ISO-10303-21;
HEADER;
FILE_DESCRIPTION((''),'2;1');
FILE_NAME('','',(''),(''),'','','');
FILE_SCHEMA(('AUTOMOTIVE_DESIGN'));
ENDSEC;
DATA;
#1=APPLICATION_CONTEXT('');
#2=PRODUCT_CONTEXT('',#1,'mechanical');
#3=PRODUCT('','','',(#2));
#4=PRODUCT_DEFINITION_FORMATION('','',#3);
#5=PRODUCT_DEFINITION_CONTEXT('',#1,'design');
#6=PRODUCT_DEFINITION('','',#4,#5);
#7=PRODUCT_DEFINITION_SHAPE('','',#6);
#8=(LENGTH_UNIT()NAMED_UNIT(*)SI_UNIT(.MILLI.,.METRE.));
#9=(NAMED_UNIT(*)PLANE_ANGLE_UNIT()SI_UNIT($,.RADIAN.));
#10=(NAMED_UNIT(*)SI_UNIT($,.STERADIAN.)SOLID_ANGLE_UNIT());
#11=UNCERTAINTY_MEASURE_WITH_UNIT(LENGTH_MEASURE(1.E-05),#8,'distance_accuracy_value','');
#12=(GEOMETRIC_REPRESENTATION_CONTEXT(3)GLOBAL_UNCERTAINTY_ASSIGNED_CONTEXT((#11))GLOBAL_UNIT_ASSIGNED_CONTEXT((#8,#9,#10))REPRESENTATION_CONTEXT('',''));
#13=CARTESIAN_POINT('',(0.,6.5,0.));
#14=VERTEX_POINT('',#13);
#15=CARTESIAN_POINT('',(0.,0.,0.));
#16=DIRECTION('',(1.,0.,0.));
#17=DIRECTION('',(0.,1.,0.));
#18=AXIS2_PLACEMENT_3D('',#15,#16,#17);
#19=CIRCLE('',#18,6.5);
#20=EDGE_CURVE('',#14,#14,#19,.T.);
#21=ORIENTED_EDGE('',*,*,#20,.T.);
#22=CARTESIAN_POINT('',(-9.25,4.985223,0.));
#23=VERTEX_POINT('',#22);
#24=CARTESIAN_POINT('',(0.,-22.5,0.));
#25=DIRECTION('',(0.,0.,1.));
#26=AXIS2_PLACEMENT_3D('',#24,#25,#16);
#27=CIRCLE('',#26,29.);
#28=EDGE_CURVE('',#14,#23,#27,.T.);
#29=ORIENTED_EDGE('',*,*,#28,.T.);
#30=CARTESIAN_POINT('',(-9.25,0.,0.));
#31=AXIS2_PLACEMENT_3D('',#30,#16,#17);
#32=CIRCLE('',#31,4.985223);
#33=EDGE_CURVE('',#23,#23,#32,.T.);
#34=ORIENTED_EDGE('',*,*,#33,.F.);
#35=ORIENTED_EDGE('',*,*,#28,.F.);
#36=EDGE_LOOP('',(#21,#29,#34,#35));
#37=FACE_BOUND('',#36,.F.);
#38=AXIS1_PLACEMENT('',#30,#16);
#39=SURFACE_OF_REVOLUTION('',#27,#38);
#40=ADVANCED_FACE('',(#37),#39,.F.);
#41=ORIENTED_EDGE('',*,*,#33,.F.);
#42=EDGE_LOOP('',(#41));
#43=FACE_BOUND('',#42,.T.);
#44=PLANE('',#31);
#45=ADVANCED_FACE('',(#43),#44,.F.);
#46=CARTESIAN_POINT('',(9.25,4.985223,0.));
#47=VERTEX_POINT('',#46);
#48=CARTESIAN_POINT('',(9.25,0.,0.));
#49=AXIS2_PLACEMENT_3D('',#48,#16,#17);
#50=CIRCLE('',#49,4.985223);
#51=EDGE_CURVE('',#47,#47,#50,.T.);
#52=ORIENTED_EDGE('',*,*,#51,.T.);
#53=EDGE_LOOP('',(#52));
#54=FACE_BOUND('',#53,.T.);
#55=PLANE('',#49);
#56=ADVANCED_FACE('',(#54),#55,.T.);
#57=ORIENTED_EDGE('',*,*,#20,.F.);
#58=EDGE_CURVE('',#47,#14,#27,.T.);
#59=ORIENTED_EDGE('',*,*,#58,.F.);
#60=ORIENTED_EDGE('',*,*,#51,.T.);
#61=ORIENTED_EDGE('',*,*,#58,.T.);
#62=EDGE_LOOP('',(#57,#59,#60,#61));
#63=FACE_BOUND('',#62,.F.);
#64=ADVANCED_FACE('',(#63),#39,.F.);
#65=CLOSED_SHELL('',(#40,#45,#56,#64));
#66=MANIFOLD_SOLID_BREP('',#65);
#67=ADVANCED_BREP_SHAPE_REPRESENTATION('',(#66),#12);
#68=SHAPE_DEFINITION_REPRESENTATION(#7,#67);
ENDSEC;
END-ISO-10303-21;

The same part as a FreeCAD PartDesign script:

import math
import FreeCAD as App
import Part
import Sketcher

doc = App.newDocument("Part")
params = doc.addObject("Spreadsheet::Sheet", "Params")
for row, (alias, value) in enumerate([
    ("sketch1_radius", "29 mm"),
    ("sketch1_width", "18.5 mm"),
    ("revolution_angle", "360 deg"),
], start=1):
    params.set(f"A{row}", alias)
    params.set(f"B{row}", "=" + value)
    params.setAlias(f"B{row}", alias)

body = doc.addObject("PartDesign::Body", "Body")

# Sketch on XY plane
sketch1 = doc.addObject("Sketcher::SketchObject", "Sketch")
body.addObject(sketch1)
sketch1.AttachmentSupport = (doc.XY_Plane, [""])
sketch1.MapMode = "FlatFace"
sketch1.addGeometry([
    Part.LineSegment(App.Vector(9.2, 0, 0), App.Vector(9.2, 5, 0)),
    Part.ArcOfCircle(Part.Circle(App.Vector(0, -22.5, 0), App.Vector(0, 0, 1), 29), math.radians(71), math.radians(109)),
    Part.LineSegment(App.Vector(-9.2, 5, 0), App.Vector(-9.2, 0, 0)),
    Part.LineSegment(App.Vector(-9.2, 0, 0), App.Vector(9.2, 0, 0)),
], False)
sketch1.addConstraint([
    Sketcher.Constraint("Coincident", 0, 2, 1, 1),
    Sketcher.Constraint("Coincident", 1, 2, 2, 1),
    Sketcher.Constraint("Coincident", 2, 2, 3, 1),
    Sketcher.Constraint("Coincident", 3, 2, 0, 1),
    Sketcher.Constraint("Vertical", 0),
    Sketcher.Constraint("Vertical", 2),
    Sketcher.Constraint("Horizontal", 3),
    Sketcher.Constraint("Symmetric", 2, 2, 3, 2, -1, 1),
    Sketcher.Constraint("PointOnObject", 1, 3, -2),
    Sketcher.Constraint("Radius", 1, 29.0),
    Sketcher.Constraint("DistanceX", 3, 1, 3, 2, 18.5),
    Sketcher.Constraint("DistanceY", 1, 3, -1, 1, 22.5),
])
sketch1.setExpression("Constraints[9]", "Params.sketch1_radius")
sketch1.setExpression("Constraints[10]", "Params.sketch1_width")
revolution = doc.addObject("PartDesign::Revolution", "Revolution")
body.addObject(revolution)
revolution.Profile = sketch1
revolution.ReferenceAxis = (sketch1, ["H_Axis"])
revolution.setExpression("Angle", "Params.revolution_angle")

doc.recompute()
